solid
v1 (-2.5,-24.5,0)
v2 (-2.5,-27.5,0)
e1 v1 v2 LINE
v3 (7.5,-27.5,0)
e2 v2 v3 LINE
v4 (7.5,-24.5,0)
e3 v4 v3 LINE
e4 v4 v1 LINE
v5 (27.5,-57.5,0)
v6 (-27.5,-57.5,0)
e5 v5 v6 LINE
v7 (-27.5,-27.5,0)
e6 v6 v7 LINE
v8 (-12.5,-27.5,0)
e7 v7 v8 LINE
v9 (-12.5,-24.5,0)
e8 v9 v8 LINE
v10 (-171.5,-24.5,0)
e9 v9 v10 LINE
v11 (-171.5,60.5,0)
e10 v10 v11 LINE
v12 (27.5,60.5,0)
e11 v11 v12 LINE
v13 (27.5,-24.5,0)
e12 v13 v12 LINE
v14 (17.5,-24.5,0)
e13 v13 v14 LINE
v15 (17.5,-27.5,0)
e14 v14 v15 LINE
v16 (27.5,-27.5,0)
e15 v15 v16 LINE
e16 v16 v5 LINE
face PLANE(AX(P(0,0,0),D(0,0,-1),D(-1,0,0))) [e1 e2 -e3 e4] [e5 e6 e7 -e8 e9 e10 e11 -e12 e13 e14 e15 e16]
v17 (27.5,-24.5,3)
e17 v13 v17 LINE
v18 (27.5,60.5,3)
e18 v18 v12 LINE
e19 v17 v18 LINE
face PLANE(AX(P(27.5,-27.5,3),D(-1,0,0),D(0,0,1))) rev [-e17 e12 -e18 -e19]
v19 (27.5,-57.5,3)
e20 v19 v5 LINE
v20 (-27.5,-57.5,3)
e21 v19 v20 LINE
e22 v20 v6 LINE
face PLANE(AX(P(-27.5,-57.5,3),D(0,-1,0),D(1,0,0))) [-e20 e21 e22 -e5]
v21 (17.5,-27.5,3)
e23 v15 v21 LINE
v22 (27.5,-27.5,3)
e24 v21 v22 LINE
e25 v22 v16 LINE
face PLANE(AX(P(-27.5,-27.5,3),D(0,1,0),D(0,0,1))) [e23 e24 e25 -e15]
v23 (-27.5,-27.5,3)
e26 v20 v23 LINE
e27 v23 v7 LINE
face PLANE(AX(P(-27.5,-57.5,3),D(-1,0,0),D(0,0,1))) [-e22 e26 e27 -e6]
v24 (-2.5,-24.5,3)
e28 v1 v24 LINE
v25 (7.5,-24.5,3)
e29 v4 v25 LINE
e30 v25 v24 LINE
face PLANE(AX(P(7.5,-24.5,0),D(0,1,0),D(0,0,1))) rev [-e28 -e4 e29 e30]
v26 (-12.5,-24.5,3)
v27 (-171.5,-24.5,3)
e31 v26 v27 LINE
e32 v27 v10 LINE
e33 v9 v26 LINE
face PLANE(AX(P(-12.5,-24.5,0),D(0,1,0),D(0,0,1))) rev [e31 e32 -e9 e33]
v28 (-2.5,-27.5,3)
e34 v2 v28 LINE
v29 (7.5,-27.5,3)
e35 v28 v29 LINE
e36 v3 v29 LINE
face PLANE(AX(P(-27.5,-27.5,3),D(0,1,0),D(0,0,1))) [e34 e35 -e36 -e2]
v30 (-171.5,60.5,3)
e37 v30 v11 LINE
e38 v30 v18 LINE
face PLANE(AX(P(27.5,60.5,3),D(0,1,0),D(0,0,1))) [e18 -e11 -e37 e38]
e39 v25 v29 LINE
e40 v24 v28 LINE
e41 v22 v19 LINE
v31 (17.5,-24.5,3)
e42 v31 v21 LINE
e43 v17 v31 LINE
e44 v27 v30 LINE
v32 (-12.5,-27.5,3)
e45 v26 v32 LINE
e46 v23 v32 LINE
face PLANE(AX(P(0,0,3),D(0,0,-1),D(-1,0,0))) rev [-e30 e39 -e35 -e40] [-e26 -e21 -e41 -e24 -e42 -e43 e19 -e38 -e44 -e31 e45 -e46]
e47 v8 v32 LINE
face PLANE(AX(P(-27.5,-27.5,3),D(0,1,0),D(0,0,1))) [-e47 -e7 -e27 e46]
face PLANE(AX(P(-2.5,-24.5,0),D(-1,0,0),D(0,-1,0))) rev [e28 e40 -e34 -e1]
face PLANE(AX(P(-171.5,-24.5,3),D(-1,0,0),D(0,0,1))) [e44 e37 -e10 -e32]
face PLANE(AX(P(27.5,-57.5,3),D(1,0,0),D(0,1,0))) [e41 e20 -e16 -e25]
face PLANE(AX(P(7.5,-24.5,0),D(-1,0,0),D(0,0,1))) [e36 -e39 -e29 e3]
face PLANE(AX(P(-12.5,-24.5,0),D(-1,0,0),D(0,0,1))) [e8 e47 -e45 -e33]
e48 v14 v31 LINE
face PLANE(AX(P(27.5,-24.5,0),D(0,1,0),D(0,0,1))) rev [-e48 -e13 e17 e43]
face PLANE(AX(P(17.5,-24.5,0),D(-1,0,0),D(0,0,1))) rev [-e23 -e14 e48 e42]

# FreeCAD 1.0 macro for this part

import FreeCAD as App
import Part
import Sketcher
Q = App.Units.Quantity

doc = App.newDocument("Part")
body = doc.addObject("PartDesign::Body", "Body")

sketch1 = body.newObject("Sketcher::SketchObject", "Sketch")
sketch1.AttachmentSupport = (doc.getObject("XY_Plane"), [""])
sketch1.MapMode = "FlatFace"
sketch1.addGeometry([
    Part.LineSegment(App.Vector(-28, 28, 0), App.Vector(-28, -28, 0)),
    Part.LineSegment(App.Vector(-28, -28, 0), App.Vector(28, -28, 0)),
    Part.LineSegment(App.Vector(28, -28, 0), App.Vector(28, 28, 0)),
    Part.LineSegment(App.Vector(28, 28, 0), App.Vector(-28, 28, 0)),
], False)
sketch1.addConstraint([
    Sketcher.Constraint("Coincident", 0, 2, 1, 1),
    Sketcher.Constraint("Coincident", 1, 2, 2, 1),
    Sketcher.Constraint("Coincident", 2, 2, 3, 1),
    Sketcher.Constraint("Coincident", 3, 2, 0, 1),
    Sketcher.Constraint("Vertical", 0),
    Sketcher.Constraint("Horizontal", 1),
    Sketcher.Constraint("Vertical", 2),
    Sketcher.Constraint("Horizontal", 3),
    Sketcher.Constraint("Symmetric", 0, 2, 2, 2, -1, 1),
    Sketcher.Constraint("Equal", 3, 0),
    Sketcher.Constraint("DistanceX", 1, 1, 1, 2, Q("55 mm")),
])
pad1 = body.newObject("PartDesign::Pad", "Pad")
pad1.Profile = sketch1
pad1.Length = 3

sketch2 = body.newObject("Sketcher::SketchObject", "Sketch001")
sketch2.AttachmentSupport = (doc.getObject("XY_Plane"), [""])
sketch2.MapMode = "FlatFace"
sketch2.AttachmentOffset = App.Placement(App.Vector(0, 0, 3), App.Rotation())
sketch2.addGeometry([
    Part.LineSegment(App.Vector(17.5, -24.5, 0), App.Vector(17.5, -27.5, 0)),
    Part.LineSegment(App.Vector(17.5, -27.5, 0), App.Vector(27.5, -27.5, 0)),
    Part.LineSegment(App.Vector(27.5, -27.5, 0), App.Vector(27.5, -24.5, 0)),
    Part.LineSegment(App.Vector(27.5, -24.5, 0), App.Vector(17.5, -24.5, 0)),
    Part.LineSegment(App.Vector(-2.5, -24.5, 0), App.Vector(-2.5, -27.5, 0)),
    Part.LineSegment(App.Vector(-2.5, -27.5, 0), App.Vector(7.5, -27.5, 0)),
    Part.LineSegment(App.Vector(7.5, -27.5, 0), App.Vector(7.5, -24.5, 0)),
    Part.LineSegment(App.Vector(7.5, -24.5, 0), App.Vector(-2.5, -24.5, 0)),
    Part.LineSegment(App.Vector(-27.5, -24.5, 0), App.Vector(-27.5, -27.5, 0)),
    Part.LineSegment(App.Vector(-27.5, -27.5, 0), App.Vector(-12.5, -27.5, 0)),
    Part.LineSegment(App.Vector(-12.5, -27.5, 0), App.Vector(-12.5, -24.5, 0)),
    Part.LineSegment(App.Vector(-12.5, -24.5, 0), App.Vector(-27.5, -24.5, 0)),
], False)
sketch2.addConstraint([
    Sketcher.Constraint("Coincident", 0, 2, 1, 1),
    Sketcher.Constraint("Coincident", 1, 2, 2, 1),
    Sketcher.Constraint("Coincident", 2, 2, 3, 1),
    Sketcher.Constraint("Coincident", 3, 2, 0, 1),
    Sketcher.Constraint("Coincident", 4, 2, 5, 1),
    Sketcher.Constraint("Coincident", 5, 2, 6, 1),
    Sketcher.Constraint("Coincident", 6, 2, 7, 1),
    Sketcher.Constraint("Coincident", 7, 2, 4, 1),
    Sketcher.Constraint("Coincident", 8, 2, 9, 1),
    Sketcher.Constraint("Coincident", 9, 2, 10, 1),
    Sketcher.Constraint("Coincident", 10, 2, 11, 1),
    Sketcher.Constraint("Coincident", 11, 2, 8, 1),
    Sketcher.Constraint("Vertical", 0),
    Sketcher.Constraint("Horizontal", 1),
    Sketcher.Constraint("Vertical", 2),
    Sketcher.Constraint("Horizontal", 3),
    Sketcher.Constraint("Vertical", 4),
    Sketcher.Constraint("Horizontal", 5),
    Sketcher.Constraint("Vertical", 6),
    Sketcher.Constraint("Horizontal", 7),
    Sketcher.Constraint("Vertical", 8),
    Sketcher.Constraint("Horizontal", 9),
    Sketcher.Constraint("Vertical", 10),
    Sketcher.Constraint("Horizontal", 11),
    Sketcher.Constraint("Symmetric", 1, 2, 8, 2, -2),
    Sketcher.Constraint("Horizontal", 1, 2, 4, 2),
    Sketcher.Constraint("Horizontal", 3, 2, 6, 2),
    Sketcher.Constraint("Horizontal", 7, 2, 10, 2),
    Sketcher.Constraint("Equal", 3, 5),
    Sketcher.Constraint("DistanceX", 1, 1, 1, 2, Q("10 mm")),
    Sketcher.Constraint("DistanceX", 9, 1, 9, 2, Q("15 mm")),
    Sketcher.Constraint("DistanceY", 0, 2, 0, 1, Q("3 mm")),
    Sketcher.Constraint("DistanceX", 4, 2, 0, 2, Q("20 mm")),
    Sketcher.Constraint("DistanceX", 8, 2, 4, 2, Q("25 mm")),
    Sketcher.Constraint("DistanceY", 0, 2, -1, 1, Q("27.5 mm")),
])
pocket1 = body.newObject("PartDesign::Pocket", "Pocket")
pocket1.Profile = sketch2
pocket1.Length = 3

sketch3 = body.newObject("Sketcher::SketchObject", "Sketch002")
sketch3.AttachmentSupport = (doc.getObject("XY_Plane"), [""])
sketch3.MapMode = "FlatFace"
sketch3.addGeometry([
    Part.LineSegment(App.Vector(28, -28, 0), App.Vector(28, -58, 0)),
    Part.LineSegment(App.Vector(28, -58, 0), App.Vector(-28, -58, 0)),
    Part.LineSegment(App.Vector(-28, -58, 0), App.Vector(-28, -28, 0)),
    Part.LineSegment(App.Vector(-28, -28, 0), App.Vector(28, -28, 0)),
], False)
sketch3.addConstraint([
    Sketcher.Constraint("Coincident", 0, 2, 1, 1),
    Sketcher.Constraint("Coincident", 1, 2, 2, 1),
    Sketcher.Constraint("Coincident", 2, 2, 3, 1),
    Sketcher.Constraint("Coincident", 3, 2, 0, 1),
    Sketcher.Constraint("Vertical", 0),
    Sketcher.Constraint("Horizontal", 1),
    Sketcher.Constraint("Vertical", 2),
    Sketcher.Constraint("Horizontal", 3),
    Sketcher.Constraint("DistanceX", 1, 2, 1, 1, Q("55 mm")),
    Sketcher.Constraint("DistanceY", 0, 2, 0, 1, Q("30 mm")),
    Sketcher.Constraint("DistanceX", -1, 1, 0, 2, Q("27.5 mm")),
    Sketcher.Constraint("DistanceY", 0, 2, -1, 1, Q("57.5 mm")),
])
pad2 = body.newObject("PartDesign::Pad", "Pad001")
pad2.Profile = sketch3
pad2.Length = 3

sketch4 = body.newObject("Sketcher::SketchObject", "Sketch003")
sketch4.AttachmentSupport = (doc.getObject("XY_Plane"), [""])
sketch4.MapMode = "FlatFace"
sketch4.addGeometry([
    Part.LineSegment(App.Vector(-28, 28, 0), App.Vector(-28, -24, 0)),
    Part.LineSegment(App.Vector(-28, -24, 0), App.Vector(-172, -24, 0)),
    Part.LineSegment(App.Vector(-172, -24, 0), App.Vector(-172, 28, 0)),
    Part.LineSegment(App.Vector(-172, 28, 0), App.Vector(-28, 28, 0)),
], False)
sketch4.addConstraint([
    Sketcher.Constraint("Coincident", 0, 2, 1, 1),
    Sketcher.Constraint("Coincident", 1, 2, 2, 1),
    Sketcher.Constraint("Coincident", 2, 2, 3, 1),
    Sketcher.Constraint("Coincident", 3, 2, 0, 1),
    Sketcher.Constraint("Vertical", 0),
    Sketcher.Constraint("Horizontal", 1),
    Sketcher.Constraint("Vertical", 2),
    Sketcher.Constraint("Horizontal", 3),
    Sketcher.Constraint("DistanceX", 1, 2, 1, 1, Q("144 mm")),
    Sketcher.Constraint("DistanceY", 0, 2, 0, 1, Q("52 mm")),
    Sketcher.Constraint("DistanceX", 0, 2, -1, 1, Q("27.5 mm")),
    Sketcher.Constraint("DistanceY", 0, 2, -1, 1, Q("24.5 mm")),
])
pad3 = body.newObject("PartDesign::Pad", "Pad002")
pad3.Profile = sketch4
pad3.Length = 3

sketch5 = body.newObject("Sketcher::SketchObject", "Sketch004")
sketch5.AttachmentSupport = (doc.getObject("XY_Plane"), [""])
sketch5.MapMode = "FlatFace"
sketch5.addGeometry([
    Part.LineSegment(App.Vector(28, 40, 0), App.Vector(28, 28, 0)),
    Part.LineSegment(App.Vector(28, 28, 0), App.Vector(-172, 28, 0)),
    Part.LineSegment(App.Vector(-172, 28, 0), App.Vector(-172, 40, 0)),
    Part.LineSegment(App.Vector(-172, 40, 0), App.Vector(28, 40, 0)),
], False)
sketch5.addConstraint([
    Sketcher.Constraint("Coincident", 0, 2, 1, 1),
    Sketcher.Constraint("Coincident", 1, 2, 2, 1),
    Sketcher.Constraint("Coincident", 2, 2, 3, 1),
    Sketcher.Constraint("Coincident", 3, 2, 0, 1),
    Sketcher.Constraint("Vertical", 0),
    Sketcher.Constraint("Horizontal", 1),
    Sketcher.Constraint("Vertical", 2),
    Sketcher.Constraint("Horizontal", 3),
    Sketcher.Constraint("DistanceX", 1, 2, 1, 1, Q("199 mm")),
    Sketcher.Constraint("DistanceY", 0, 2, 0, 1, Q("13 mm")),
    Sketcher.Constraint("DistanceX", -1, 1, 0, 2, Q("27.5 mm")),
    Sketcher.Constraint("DistanceY", -1, 1, 0, 2, Q("27.5 mm")),
])
pad4 = body.newObject("PartDesign::Pad", "Pad003")
pad4.Profile = sketch5
pad4.Length = 3

sketch6 = body.newObject("Sketcher::SketchObject", "Sketch005")
sketch6.AttachmentSupport = (doc.getObject("XY_Plane"), [""])
sketch6.MapMode = "FlatFace"
sketch6.addGeometry([
    Part.LineSegment(App.Vector(28, 60, 0), App.Vector(28, 40, 0)),
    Part.LineSegment(App.Vector(28, 40, 0), App.Vector(-172, 40, 0)),
    Part.LineSegment(App.Vector(-172, 40, 0), App.Vector(-172, 60, 0)),
    Part.LineSegment(App.Vector(-172, 60, 0), App.Vector(28, 60, 0)),
], False)
sketch6.addConstraint([
    Sketcher.Constraint("Coincident", 0, 2, 1, 1),
    Sketcher.Constraint("Coincident", 1, 2, 2, 1),
    Sketcher.Constraint("Coincident", 2, 2, 3, 1),
    Sketcher.Constraint("Coincident", 3, 2, 0, 1),
    Sketcher.Constraint("Vertical", 0),
    Sketcher.Constraint("Horizontal", 1),
    Sketcher.Constraint("Vertical", 2),
    Sketcher.Constraint("Horizontal", 3),
    Sketcher.Constraint("DistanceX", 1, 2, 1, 1, Q("199 mm")),
    Sketcher.Constraint("DistanceY", 0, 2, 0, 1, Q("20 mm")),
    Sketcher.Constraint("DistanceX", -1, 1, 0, 2, Q("27.5 mm")),
    Sketcher.Constraint("DistanceY", -1, 1, 0, 2, Q("40.5 mm")),
])
pad5 = body.newObject("PartDesign::Pad", "Pad004")
pad5.Profile = sketch6
pad5.Length = 3

sketch7 = body.newObject("Sketcher::SketchObject", "Sketch006")
sketch7.AttachmentSupport = (doc.getObject("XY_Plane"), [""])
sketch7.MapMode = "FlatFace"
sketch7.addGeometry([
    Part.Circle(App.Vector(-168.5, 46.5, 0), App.Vector(0, 0, 1), 2),
    Part.Circle(App.Vector(-168.5, 36.5, 0), App.Vector(0, 0, 1), 2),
    Part.Circle(App.Vector(-118.5, 36.5, 0), App.Vector(0, 0, 1), 2),
    Part.Circle(App.Vector(-118.5, 46.5, 0), App.Vector(0, 0, 1), 2),
    Part.LineSegment(App.Vector(-123.5, 51.5, 0), App.Vector(-123.5, 31.5, 0)),
    Part.LineSegment(App.Vector(-123.5, 31.5, 0), App.Vector(-163.5, 31.5, 0)),
    Part.LineSegment(App.Vector(-163.5, 31.5, 0), App.Vector(-163.5, 51.5, 0)),
    Part.LineSegment(App.Vector(-163.5, 51.5, 0), App.Vector(-123.5, 51.5, 0)),
], False)
sketch7.addConstraint([
    Sketcher.Constraint("Coincident", 4, 2, 5, 1),
    Sketcher.Constraint("Coincident", 5, 2, 6, 1),
    Sketcher.Constraint("Coincident", 6, 2, 7, 1),
    Sketcher.Constraint("Coincident", 7, 2, 4, 1),
    Sketcher.Constraint("Vertical", 4),
    Sketcher.Constraint("Horizontal", 5),
    Sketcher.Constraint("Vertical", 6),
    Sketcher.Constraint("Horizontal", 7),
    Sketcher.Constraint("Equal", 0, 1),
    Sketcher.Constraint("Equal", 1, 2),
    Sketcher.Constraint("Equal", 2, 3),
    Sketcher.Constraint("Horizontal", 1, 3, 2, 3),
    Sketcher.Constraint("Horizontal", 0, 3, 3, 3),
    Sketcher.Constraint("Vertical", 0, 3, 1, 3),
    Sketcher.Constraint("Vertical", 2, 3, 3, 3),
    Sketcher.Constraint("Diameter", 0, Q("4 mm")),
    Sketcher.Constraint("DistanceX", 5, 2, 5, 1, Q("40 mm")),
    Sketcher.Constraint("DistanceY", 4, 2, 4, 1, Q("20 mm")),
    Sketcher.Constraint("DistanceY", 1, 3, 0, 3, Q("10 mm")),
    Sketcher.Constraint("DistanceX", 1, 3, 2, 3, Q("50 mm")),
    Sketcher.Constraint("DistanceX", 4, 2, 2, 3, Q("5 mm")),
    Sketcher.Constraint("DistanceY", 4, 2, 2, 3, Q("5 mm")),
    Sketcher.Constraint("DistanceX", 0, 3, -1, 1, Q("168.5 mm")),
    Sketcher.Constraint("DistanceY", -1, 1, 0, 3, Q("46.5 mm")),
])
pocket2 = body.newObject("PartDesign::Pocket", "Pocket001")
pocket2.Profile = sketch7
pocket2.Length = 33
pocket2.Reversed = True

sketch8 = body.newObject("Sketcher::SketchObject", "Sketch007")
sketch8.AttachmentSupport = (doc.getObject("XY_Plane"), [""])
sketch8.MapMode = "FlatFace"
sketch8.addGeometry([
    Part.LineSegment(App.Vector(-124, 60, 0), App.Vector(-124, 52, 0)),
    Part.LineSegment(App.Vector(-124, 52, 0), App.Vector(-164, 52, 0)),
    Part.LineSegment(App.Vector(-164, 52, 0), App.Vector(-164, 60, 0)),
    Part.LineSegment(App.Vector(-164, 60, 0), App.Vector(-124, 60, 0)),
], False)
sketch8.addConstraint([
    Sketcher.Constraint("Coincident", 0, 2, 1, 1),
    Sketcher.Constraint("Coincident", 1, 2, 2, 1),
    Sketcher.Constraint("Coincident", 2, 2, 3, 1),
    Sketcher.Constraint("Coincident", 3, 2, 0, 1),
    Sketcher.Constraint("Vertical", 0),
    Sketcher.Constraint("Horizontal", 1),
    Sketcher.Constraint("Vertical", 2),
    Sketcher.Constraint("Horizontal", 3),
    Sketcher.Constraint("DistanceX", 1, 2, 1, 1, Q("40 mm")),
    Sketcher.Constraint("DistanceY", 0, 2, 0, 1, Q("9 mm")),
    Sketcher.Constraint("DistanceX", 0, 2, -1, 1, Q("123.5 mm")),
    Sketcher.Constraint("DistanceY", -1, 1, 0, 2, Q("51.5 mm")),
])
pocket3 = body.newObject("PartDesign::Pocket", "Pocket002")
pocket3.Profile = sketch8
pocket3.Length = 33
pocket3.Reversed = True

sketch9 = body.newObject("Sketcher::SketchObject", "Sketch008")
sketch9.AttachmentSupport = (doc.getObject("XY_Plane"), [""])
sketch9.MapMode = "FlatFace"
sketch9.addGeometry([
    Part.LineSegment(App.Vector(-108, 60, 0), App.Vector(-108, 30, 0)),
    Part.LineSegment(App.Vector(-108, 30, 0), App.Vector(-172, 30, 0)),
    Part.LineSegment(App.Vector(-172, 30, 0), App.Vector(-172, 60, 0)),
    Part.LineSegment(App.Vector(-172, 60, 0), App.Vector(-108, 60, 0)),
], False)
sketch9.addConstraint([
    Sketcher.Constraint("Coincident", 0, 2, 1, 1),
    Sketcher.Constraint("Coincident", 1, 2, 2, 1),
    Sketcher.Constraint("Coincident", 2, 2, 3, 1),
    Sketcher.Constraint("Coincident", 3, 2, 0, 1),
    Sketcher.Constraint("Vertical", 0),
    Sketcher.Constraint("Horizontal", 1),
    Sketcher.Constraint("Vertical", 2),
    Sketcher.Constraint("Horizontal", 3),
    Sketcher.Constraint("DistanceX", 1, 2, -1, 1, Q("171.5 mm")),
    Sketcher.Constraint("DistanceY", -1, 1, 2, 2, Q("60.5 mm")),
    Sketcher.Constraint("DistanceX", 1, 2, 1, 1, Q("63.816091 mm")),
    Sketcher.Constraint("DistanceY", 0, 2, 0, 1, Q("30.906315 mm")),
])
pad6 = body.newObject("PartDesign::Pad", "Pad005")
pad6.Profile = sketch9
pad6.Length = 3

doc.recompute()
